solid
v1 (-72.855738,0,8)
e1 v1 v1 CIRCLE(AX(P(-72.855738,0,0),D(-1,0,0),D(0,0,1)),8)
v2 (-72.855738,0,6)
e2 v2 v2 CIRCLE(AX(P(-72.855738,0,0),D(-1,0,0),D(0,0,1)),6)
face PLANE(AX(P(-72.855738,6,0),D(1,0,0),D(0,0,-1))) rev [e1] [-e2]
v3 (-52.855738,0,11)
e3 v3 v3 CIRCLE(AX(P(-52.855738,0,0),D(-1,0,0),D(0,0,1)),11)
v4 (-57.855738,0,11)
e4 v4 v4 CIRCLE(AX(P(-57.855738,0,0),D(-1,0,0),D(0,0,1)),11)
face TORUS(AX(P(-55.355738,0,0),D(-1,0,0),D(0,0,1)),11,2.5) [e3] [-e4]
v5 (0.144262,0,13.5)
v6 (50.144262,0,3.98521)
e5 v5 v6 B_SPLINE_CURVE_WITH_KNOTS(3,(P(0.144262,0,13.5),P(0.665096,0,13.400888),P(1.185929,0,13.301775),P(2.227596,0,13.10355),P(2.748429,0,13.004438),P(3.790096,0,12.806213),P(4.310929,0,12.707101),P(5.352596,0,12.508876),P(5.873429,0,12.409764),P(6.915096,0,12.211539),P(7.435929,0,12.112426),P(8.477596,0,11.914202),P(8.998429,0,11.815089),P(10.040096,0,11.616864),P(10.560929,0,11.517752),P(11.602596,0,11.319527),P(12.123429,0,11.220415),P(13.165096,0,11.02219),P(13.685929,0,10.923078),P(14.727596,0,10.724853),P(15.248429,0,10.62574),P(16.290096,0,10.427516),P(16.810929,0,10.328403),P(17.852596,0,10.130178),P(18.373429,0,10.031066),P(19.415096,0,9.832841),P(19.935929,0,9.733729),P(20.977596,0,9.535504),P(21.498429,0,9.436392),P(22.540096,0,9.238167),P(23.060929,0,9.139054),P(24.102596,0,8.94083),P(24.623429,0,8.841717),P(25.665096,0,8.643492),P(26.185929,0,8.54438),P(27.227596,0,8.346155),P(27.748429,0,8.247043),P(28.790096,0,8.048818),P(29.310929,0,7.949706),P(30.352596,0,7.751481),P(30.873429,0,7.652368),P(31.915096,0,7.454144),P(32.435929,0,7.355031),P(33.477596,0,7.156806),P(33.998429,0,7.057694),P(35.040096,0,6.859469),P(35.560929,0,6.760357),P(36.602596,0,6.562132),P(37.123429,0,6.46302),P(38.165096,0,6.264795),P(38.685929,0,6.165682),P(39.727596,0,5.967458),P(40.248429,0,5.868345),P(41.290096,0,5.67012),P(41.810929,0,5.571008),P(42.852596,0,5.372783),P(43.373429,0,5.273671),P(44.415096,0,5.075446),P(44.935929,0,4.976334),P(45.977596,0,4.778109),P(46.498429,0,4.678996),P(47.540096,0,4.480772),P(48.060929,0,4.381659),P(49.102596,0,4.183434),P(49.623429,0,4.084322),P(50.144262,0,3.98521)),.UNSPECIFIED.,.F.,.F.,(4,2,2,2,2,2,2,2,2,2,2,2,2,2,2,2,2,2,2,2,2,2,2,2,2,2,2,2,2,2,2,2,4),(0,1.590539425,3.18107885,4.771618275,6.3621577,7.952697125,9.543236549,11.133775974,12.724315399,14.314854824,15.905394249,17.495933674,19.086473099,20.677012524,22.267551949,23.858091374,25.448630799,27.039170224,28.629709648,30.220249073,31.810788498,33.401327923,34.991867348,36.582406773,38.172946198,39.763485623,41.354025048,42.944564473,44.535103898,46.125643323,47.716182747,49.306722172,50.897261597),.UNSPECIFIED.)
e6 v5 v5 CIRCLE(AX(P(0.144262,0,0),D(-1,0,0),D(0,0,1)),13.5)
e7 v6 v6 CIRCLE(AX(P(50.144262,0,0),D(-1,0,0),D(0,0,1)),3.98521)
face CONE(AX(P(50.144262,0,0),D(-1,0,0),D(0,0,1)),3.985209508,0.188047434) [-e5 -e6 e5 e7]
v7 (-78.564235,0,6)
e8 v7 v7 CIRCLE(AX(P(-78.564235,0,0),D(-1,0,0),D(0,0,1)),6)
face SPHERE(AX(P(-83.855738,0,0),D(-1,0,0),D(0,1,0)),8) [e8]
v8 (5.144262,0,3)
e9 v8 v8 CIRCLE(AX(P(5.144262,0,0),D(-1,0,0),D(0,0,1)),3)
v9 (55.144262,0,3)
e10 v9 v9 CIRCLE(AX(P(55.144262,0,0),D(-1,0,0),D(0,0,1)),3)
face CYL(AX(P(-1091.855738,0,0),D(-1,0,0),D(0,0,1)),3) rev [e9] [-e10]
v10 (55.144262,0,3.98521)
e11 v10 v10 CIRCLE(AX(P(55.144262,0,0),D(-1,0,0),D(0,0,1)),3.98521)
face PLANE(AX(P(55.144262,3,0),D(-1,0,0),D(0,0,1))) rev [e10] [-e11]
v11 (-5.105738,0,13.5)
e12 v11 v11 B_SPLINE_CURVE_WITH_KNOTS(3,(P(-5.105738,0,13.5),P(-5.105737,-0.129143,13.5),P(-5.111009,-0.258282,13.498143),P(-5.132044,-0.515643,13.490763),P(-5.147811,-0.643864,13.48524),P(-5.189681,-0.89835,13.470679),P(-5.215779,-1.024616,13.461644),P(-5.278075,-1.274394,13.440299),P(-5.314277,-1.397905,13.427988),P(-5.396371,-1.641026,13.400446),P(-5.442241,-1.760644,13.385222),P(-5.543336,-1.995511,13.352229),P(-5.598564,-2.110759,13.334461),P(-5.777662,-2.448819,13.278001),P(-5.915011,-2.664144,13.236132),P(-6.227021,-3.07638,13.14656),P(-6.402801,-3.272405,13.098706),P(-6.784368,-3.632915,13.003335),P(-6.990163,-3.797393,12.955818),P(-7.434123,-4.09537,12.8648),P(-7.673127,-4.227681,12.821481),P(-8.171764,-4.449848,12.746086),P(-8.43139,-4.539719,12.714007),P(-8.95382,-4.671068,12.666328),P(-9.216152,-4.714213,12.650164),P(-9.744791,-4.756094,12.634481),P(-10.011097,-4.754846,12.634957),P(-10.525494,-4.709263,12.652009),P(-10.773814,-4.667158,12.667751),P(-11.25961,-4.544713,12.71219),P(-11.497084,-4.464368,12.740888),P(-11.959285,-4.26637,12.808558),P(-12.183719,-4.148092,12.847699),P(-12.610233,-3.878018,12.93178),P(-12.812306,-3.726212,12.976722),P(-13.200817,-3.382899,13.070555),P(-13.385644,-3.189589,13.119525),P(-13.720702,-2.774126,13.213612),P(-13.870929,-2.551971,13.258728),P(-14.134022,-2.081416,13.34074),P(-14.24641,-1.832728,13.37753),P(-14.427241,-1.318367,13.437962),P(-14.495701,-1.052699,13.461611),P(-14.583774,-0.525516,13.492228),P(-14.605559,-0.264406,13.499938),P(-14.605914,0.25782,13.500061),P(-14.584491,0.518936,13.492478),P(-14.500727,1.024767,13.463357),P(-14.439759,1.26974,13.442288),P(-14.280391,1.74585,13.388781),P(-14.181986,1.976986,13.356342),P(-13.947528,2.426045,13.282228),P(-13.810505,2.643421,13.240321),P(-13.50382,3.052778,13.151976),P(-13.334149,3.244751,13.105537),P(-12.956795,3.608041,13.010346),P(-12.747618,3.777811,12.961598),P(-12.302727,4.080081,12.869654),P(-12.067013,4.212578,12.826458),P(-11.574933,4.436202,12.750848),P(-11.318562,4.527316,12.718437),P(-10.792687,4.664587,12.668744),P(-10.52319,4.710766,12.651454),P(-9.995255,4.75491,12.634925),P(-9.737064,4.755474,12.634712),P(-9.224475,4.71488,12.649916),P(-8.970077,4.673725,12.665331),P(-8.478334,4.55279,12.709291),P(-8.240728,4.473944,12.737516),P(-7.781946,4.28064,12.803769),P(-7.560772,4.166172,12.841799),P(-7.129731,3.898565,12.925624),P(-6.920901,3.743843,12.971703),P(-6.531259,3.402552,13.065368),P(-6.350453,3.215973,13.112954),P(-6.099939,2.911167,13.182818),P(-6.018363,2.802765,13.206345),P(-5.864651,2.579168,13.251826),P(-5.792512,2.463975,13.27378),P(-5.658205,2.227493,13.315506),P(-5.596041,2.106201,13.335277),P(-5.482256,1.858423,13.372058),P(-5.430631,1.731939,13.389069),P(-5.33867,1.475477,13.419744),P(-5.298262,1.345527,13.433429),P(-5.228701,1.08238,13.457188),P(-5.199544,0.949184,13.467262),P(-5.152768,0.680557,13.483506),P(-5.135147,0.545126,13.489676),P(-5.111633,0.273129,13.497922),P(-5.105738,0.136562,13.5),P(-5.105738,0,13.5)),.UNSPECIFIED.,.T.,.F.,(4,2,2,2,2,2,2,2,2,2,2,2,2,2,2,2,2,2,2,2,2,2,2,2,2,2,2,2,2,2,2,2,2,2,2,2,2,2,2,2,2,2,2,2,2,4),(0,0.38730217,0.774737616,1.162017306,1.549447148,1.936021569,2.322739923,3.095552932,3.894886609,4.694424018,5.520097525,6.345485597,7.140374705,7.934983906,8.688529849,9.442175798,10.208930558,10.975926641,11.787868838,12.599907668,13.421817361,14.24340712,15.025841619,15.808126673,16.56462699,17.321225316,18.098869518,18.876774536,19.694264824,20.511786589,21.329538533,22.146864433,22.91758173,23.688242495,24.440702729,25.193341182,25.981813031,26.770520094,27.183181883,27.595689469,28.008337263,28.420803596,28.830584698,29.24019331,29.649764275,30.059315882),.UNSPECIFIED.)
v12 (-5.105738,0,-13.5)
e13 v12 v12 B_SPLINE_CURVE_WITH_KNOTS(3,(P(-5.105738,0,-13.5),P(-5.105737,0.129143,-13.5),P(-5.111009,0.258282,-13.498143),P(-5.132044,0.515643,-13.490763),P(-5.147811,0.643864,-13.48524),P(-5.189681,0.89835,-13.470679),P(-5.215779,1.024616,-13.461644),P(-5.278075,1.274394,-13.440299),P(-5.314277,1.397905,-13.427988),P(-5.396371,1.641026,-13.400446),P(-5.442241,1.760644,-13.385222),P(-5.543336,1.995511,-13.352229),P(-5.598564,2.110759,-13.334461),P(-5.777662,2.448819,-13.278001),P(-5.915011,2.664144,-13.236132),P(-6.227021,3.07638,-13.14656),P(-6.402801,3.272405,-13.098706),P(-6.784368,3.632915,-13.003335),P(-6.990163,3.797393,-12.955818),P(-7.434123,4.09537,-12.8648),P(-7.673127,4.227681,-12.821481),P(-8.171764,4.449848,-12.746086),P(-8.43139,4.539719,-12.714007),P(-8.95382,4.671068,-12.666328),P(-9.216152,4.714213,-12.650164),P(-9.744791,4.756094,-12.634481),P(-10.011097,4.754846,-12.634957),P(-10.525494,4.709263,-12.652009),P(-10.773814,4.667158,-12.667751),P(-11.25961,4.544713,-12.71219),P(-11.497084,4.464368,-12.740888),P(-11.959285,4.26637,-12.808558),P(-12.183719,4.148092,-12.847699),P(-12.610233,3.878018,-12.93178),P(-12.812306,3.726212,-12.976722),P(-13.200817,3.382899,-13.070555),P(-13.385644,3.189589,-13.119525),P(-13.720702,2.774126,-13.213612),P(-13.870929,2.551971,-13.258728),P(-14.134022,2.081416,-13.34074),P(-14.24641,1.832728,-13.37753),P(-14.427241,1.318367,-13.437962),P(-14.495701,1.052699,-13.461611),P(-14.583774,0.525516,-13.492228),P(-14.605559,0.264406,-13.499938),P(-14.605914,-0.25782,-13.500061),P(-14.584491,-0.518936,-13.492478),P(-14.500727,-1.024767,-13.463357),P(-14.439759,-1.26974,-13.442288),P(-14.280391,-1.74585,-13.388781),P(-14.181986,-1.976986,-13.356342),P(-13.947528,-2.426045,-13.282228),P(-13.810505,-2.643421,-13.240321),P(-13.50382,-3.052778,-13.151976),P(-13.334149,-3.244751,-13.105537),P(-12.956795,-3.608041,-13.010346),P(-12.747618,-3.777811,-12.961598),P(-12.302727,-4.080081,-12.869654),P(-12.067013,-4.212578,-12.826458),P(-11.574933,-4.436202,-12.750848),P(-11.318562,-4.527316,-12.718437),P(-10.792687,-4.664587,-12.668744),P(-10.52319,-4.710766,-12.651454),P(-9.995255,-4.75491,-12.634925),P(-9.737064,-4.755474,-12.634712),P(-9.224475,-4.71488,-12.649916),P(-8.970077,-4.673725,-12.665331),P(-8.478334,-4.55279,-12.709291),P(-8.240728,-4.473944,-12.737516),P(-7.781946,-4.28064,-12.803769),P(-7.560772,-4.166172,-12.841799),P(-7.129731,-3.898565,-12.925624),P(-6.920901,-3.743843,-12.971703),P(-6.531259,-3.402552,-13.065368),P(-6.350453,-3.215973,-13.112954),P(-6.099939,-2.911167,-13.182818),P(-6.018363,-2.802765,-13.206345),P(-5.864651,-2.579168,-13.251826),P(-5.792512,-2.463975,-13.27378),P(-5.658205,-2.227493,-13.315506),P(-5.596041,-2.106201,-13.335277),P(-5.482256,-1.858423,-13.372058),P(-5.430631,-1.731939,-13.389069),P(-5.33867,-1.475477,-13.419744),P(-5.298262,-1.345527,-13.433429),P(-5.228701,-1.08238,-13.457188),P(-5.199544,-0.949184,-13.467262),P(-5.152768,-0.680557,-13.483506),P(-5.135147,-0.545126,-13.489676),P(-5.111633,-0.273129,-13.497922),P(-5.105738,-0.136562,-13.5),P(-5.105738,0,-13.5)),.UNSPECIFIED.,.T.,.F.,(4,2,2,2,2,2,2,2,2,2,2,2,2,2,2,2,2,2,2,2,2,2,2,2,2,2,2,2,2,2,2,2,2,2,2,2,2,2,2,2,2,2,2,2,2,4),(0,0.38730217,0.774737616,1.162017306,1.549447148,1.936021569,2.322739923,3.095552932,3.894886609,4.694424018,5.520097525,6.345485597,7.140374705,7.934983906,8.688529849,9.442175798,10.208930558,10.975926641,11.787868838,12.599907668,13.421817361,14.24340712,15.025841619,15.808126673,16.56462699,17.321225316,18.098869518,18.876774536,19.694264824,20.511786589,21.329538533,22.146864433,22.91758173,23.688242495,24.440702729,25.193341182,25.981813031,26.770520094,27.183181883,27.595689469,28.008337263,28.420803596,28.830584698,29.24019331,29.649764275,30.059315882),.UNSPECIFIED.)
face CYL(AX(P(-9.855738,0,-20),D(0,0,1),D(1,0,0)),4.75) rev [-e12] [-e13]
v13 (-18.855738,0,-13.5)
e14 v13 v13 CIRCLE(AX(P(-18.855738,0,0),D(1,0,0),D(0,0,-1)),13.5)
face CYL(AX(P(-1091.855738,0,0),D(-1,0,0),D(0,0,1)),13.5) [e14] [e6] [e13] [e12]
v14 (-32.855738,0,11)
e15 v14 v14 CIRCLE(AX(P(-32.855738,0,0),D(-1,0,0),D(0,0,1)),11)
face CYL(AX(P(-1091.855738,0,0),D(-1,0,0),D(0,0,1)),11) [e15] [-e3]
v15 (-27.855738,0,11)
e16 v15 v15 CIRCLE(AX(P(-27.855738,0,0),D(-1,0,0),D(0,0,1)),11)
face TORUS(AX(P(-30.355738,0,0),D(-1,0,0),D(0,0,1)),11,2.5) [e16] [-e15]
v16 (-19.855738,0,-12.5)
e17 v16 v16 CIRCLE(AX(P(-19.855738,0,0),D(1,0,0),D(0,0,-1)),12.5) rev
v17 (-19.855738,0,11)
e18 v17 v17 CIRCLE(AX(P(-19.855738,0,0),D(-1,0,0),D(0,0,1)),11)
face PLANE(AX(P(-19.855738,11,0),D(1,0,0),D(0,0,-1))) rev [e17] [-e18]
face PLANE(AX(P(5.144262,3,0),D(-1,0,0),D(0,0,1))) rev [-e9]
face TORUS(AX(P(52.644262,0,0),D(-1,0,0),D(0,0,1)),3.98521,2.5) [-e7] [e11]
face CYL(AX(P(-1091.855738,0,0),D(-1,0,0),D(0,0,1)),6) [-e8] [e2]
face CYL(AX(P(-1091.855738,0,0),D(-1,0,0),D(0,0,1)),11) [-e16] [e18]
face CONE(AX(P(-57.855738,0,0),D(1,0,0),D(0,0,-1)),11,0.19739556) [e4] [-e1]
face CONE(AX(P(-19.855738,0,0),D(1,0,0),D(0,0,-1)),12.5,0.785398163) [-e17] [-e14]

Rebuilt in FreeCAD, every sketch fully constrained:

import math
import FreeCAD as App
import Part
import Sketcher
from FreeCAD import Vector
Q = App.Units.Quantity


def edges_at(feature, points):
    """Names of the edges that pass closest to the given points."""
    edges = feature.Shape.Edges
    near = lambda p: min(range(len(edges)), key=lambda i: edges[i].distToShape(Part.Vertex(*p))[0])
    return sorted({f"Edge{near(p) + 1}" for p in points})

doc = App.newDocument("Part")
params = doc.addObject("Spreadsheet::Sheet", "Params")
for row, (alias, value) in enumerate([
    ("sketch1_radius", "8 mm"),
    ("sketch1_radius2", "2.5 mm"),
    ("sketch1_width", "97 mm"),
    ("sketch1_width2", "50 mm"),
    ("sketch1_width3", "20 mm"),
    ("revolution_angle", "360 deg"),
    ("chamfer_size", "1 mm"),
    ("sketch2_diameter", "9.5 mm"),
    ("pocket1_length", "40 mm"),
], start=1):
    params.set(f"A{row}", alias)
    params.set(f"B{row}", "=" + value)
    params.setAlias(f"B{row}", alias)

body = doc.addObject("PartDesign::Body", "Body")

sketch1 = body.newObject("Sketcher::SketchObject", "Sketch")
sketch1.AttachmentSupport = (doc.getObject("XY_Plane"), [""])
sketch1.MapMode = "FlatFace"
sketch1.addGeometry(Part.LineSegment(Vector(-91.9, 0, 0), Vector(5.1, 0, 0)), False)
sketch1.addGeometry(Part.LineSegment(Vector(5.1, 0, 0), Vector(5.1, 3, 0)), False)
sketch1.addGeometry(Part.LineSegment(Vector(5.1, 3, 0), Vector(55.1, 3, 0)), False)
sketch1.addGeometry(Part.LineSegment(Vector(55.1, 3, 0), Vector(55.1, 4, 0)), False)
sketch1.addGeometry(Part.ArcOfCircle(Part.Circle(Vector(52.6, 4, 0), Vector(0, 0, 1), 2.5), math.radians(0), math.radians(180)), False)
sketch1.addGeometry(Part.LineSegment(Vector(50.1, 4, 0), Vector(0.1, 13.5, 0)), False)
sketch1.addGeometry(Part.LineSegment(Vector(0.1, 13.5, 0), Vector(-19.9, 13.5, 0)), False)
sketch1.addGeometry(Part.LineSegment(Vector(-19.9, 13.5, 0), Vector(-19.9, 11, 0)), False)
sketch1.addGeometry(Part.LineSegment(Vector(-19.9, 11, 0), Vector(-27.9, 11, 0)), False)
sketch1.addGeometry(Part.ArcOfCircle(Part.Circle(Vector(-30.4, 11, 0), Vector(0, 0, 1), 2.5), math.radians(0), math.radians(180)), False)
sketch1.addGeometry(Part.LineSegment(Vector(-32.9, 11, 0), Vector(-52.9, 11, 0)), False)
sketch1.addGeometry(Part.ArcOfCircle(Part.Circle(Vector(-55.4, 11, 0), Vector(0, 0, 1), 2.5), math.radians(0), math.radians(180)), False)
sketch1.addGeometry(Part.LineSegment(Vector(-57.9, 11, 0), Vector(-72.9, 8, 0)), False)
sketch1.addGeometry(Part.LineSegment(Vector(-72.9, 8, 0), Vector(-72.9, 6, 0)), False)
sketch1.addGeometry(Part.LineSegment(Vector(-72.9, 6, 0), Vector(-78.6, 6, 0)), False)
sketch1.addGeometry(Part.ArcOfCircle(Part.Circle(Vector(-83.9, 0, 0), Vector(0, 0, 1), 8), math.radians(49), math.radians(180)), False)
sketch1.addConstraint(Sketcher.Constraint("Coincident", 0, 2, 1, 1))
sketch1.addConstraint(Sketcher.Constraint("Coincident", 1, 2, 2, 1))
sketch1.addConstraint(Sketcher.Constraint("Coincident", 2, 2, 3, 1))
sketch1.addConstraint(Sketcher.Constraint("Tangent", 3, 2, 4, 1))
sketch1.addConstraint(Sketcher.Constraint("Coincident", 4, 2, 5, 1))
sketch1.addConstraint(Sketcher.Constraint("Coincident", 5, 2, 6, 1))
sketch1.addConstraint(Sketcher.Constraint("Coincident", 6, 2, 7, 1))
sketch1.addConstraint(Sketcher.Constraint("Coincident", 7, 2, 8, 1))
sketch1.addConstraint(Sketcher.Constraint("Coincident", 8, 2, 9, 1))
sketch1.addConstraint(Sketcher.Constraint("Coincident", 9, 2, 10, 1))
sketch1.addConstraint(Sketcher.Constraint("Coincident", 10, 2, 11, 1))
sketch1.addConstraint(Sketcher.Constraint("Coincident", 11, 2, 12, 1))
sketch1.addConstraint(Sketcher.Constraint("Coincident", 12, 2, 13, 1))
sketch1.addConstraint(Sketcher.Constraint("Coincident", 13, 2, 14, 1))
sketch1.addConstraint(Sketcher.Constraint("Coincident", 14, 2, 15, 1))
sketch1.addConstraint(Sketcher.Constraint("Coincident", 15, 2, 0, 1))
sketch1.addConstraint(Sketcher.Constraint("Horizontal", 0))
sketch1.addConstraint(Sketcher.Constraint("Vertical", 1))
sketch1.addConstraint(Sketcher.Constraint("Horizontal", 2))
sketch1.addConstraint(Sketcher.Constraint("Vertical", 3))
sketch1.addConstraint(Sketcher.Constraint("Horizontal", 6))
sketch1.addConstraint(Sketcher.Constraint("Vertical", 7))
sketch1.addConstraint(Sketcher.Constraint("Horizontal", 8))
sketch1.addConstraint(Sketcher.Constraint("Horizontal", 10))
sketch1.addConstraint(Sketcher.Constraint("Vertical", 13))
sketch1.addConstraint(Sketcher.Constraint("Horizontal", 14))
sketch1.addConstraint(Sketcher.Constraint("Equal", 4, 9))
sketch1.addConstraint(Sketcher.Constraint("Equal", 9, 11))
sketch1.addConstraint(Sketcher.Constraint("PointOnObject", 15, 3, -1))
sketch1.addConstraint(Sketcher.Constraint("PointOnObject", 0, 2, -1))
sketch1.addConstraint(Sketcher.Constraint("Horizontal", 9, 3, 11, 3))
sketch1.addConstraint(Sketcher.Constraint("Horizontal", 3, 2, 4, 2))
sketch1.addConstraint(Sketcher.Constraint("Horizontal", 11, 3, 7, 2))
sketch1.addConstraint(Sketcher.Constraint("Horizontal", 8, 2, 9, 2))
sketch1.addConstraint(Sketcher.Constraint("Horizontal", 10, 2, 11, 2))
sketch1.addConstraint(Sketcher.Constraint("Equal", 6, 10))
sketch1.addConstraint(Sketcher.Constraint("Radius", 15, Q("8 mm")))
sketch1.addConstraint(Sketcher.Constraint("Radius", 4, Q("2.5 mm")))
sketch1.addConstraint(Sketcher.Constraint("DistanceX", 0, 1, 0, 2, Q("97 mm")))
sketch1.addConstraint(Sketcher.Constraint("DistanceX", 2, 1, 2, 2, Q("50 mm")))
sketch1.addConstraint(Sketcher.Constraint("DistanceX", 6, 2, 6, 1, Q("20 mm")))
sketch1.addConstraint(Sketcher.Constraint("DistanceX", 8, 2, 8, 1, Q("8 mm")))
sketch1.addConstraint(Sketcher.Constraint("DistanceY", 1, 1, 1, 2, Q("3 mm")))
sketch1.addConstraint(Sketcher.Constraint("DistanceY", 13, 2, 13, 1, Q("2 mm")))
sketch1.addConstraint(Sketcher.Constraint("DistanceY", 7, 2, 7, 1, Q("2.5 mm")))
sketch1.addConstraint(Sketcher.Constraint("DistanceY", -1, 1, 9, 3, Q("11 mm")))
sketch1.addConstraint(Sketcher.Constraint("DistanceY", -1, 1, 12, 2, Q("8 mm")))
sketch1.addConstraint(Sketcher.Constraint("DistanceX", 9, 3, 4, 3, Q("83 mm")))
sketch1.addConstraint(Sketcher.Constraint("DistanceX", 15, 3, 12, 2, Q("11 mm")))
sketch1.addConstraint(Sketcher.Constraint("DistanceY", 3, 1, 3, 2, Q("0.98521 mm")))
sketch1.addConstraint(Sketcher.Constraint("DistanceX", -1, 1, 4, 3, Q("52.644262 mm")))
sketch1.setExpression("Constraints[36]", "Params.sketch1_radius")
sketch1.setExpression("Constraints[37]", "Params.sketch1_radius2")
sketch1.setExpression("Constraints[38]", "Params.sketch1_width")
sketch1.setExpression("Constraints[39]", "Params.sketch1_width2")
sketch1.setExpression("Constraints[40]", "Params.sketch1_width3")
revolution = body.newObject("PartDesign::Revolution", "Revolution")
revolution.Profile = sketch1
revolution.ReferenceAxis = (sketch1, ["H_Axis"])
revolution.setExpression("Angle", "Params.revolution_angle")
doc.recompute()

chamfer = body.newObject("PartDesign::Chamfer", "Chamfer")
chamfer.Base = (revolution, edges_at(revolution, [(-19.856, 0, -13.5)]))
chamfer.setExpression("Size", "Params.chamfer_size")

sketch2 = body.newObject("Sketcher::SketchObject", "Sketch001")
sketch2.AttachmentSupport = (doc.getObject("XY_Plane"), [""])
sketch2.MapMode = "FlatFace"
sketch2.addGeometry(Part.Circle(Vector(-9.9, 0, 0), Vector(0, 0, 1), 4.8), False)
sketch2.addConstraint(Sketcher.Constraint("PointOnObject", 0, 3, -1))
sketch2.addConstraint(Sketcher.Constraint("Diameter", 0, Q("9.5 mm")))
sketch2.addConstraint(Sketcher.Constraint("DistanceX", 0, 3, -1, 1, Q("9.855738 mm")))
sketch2.setExpression("Constraints[1]", "Params.sketch2_diameter")
pocket1 = body.newObject("PartDesign::Pocket", "Pocket")
pocket1.Profile = sketch2
pocket1.setExpression("Length", "Params.pocket1_length")
pocket1.Midplane = True

doc.recompute()
